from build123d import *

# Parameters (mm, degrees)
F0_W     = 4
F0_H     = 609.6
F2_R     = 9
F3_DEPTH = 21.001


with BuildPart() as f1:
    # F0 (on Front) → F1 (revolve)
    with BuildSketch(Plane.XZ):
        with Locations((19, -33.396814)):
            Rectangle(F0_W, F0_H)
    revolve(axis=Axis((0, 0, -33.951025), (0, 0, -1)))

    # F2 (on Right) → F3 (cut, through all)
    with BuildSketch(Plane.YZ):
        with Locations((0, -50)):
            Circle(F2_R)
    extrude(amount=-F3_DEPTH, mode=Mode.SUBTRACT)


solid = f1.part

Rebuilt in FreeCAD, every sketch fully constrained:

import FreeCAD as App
import Part
import Sketcher

V = App.Vector
Q = App.Units.Quantity

doc = App.newDocument("Part")
body = doc.addObject("PartDesign::Body", "Body")

# Sketch on XZ plane
sketch1 = body.newObject("Sketcher::SketchObject", "Sketch")
sketch1.AttachmentSupport = (doc.getObject("XZ_Plane"), [""])
sketch1.MapMode = "FlatFace"
sketch1.addGeometry(Part.LineSegment(V(17, 271.403186, 0), V(17, -338.196814, 0)), False)
sketch1.addGeometry(Part.LineSegment(V(17, -338.196814, 0), V(21, -338.196814, 0)), False)
sketch1.addGeometry(Part.LineSegment(V(21, -338.196814, 0), V(21, 271.403186, 0)), False)
sketch1.addGeometry(Part.LineSegment(V(21, 271.403186, 0), V(17, 271.403186, 0)), False)
sketch1.addConstraint(Sketcher.Constraint("Coincident", 0, 2, 1, 1))
sketch1.addConstraint(Sketcher.Constraint("Coincident", 1, 2, 2, 1))
sketch1.addConstraint(Sketcher.Constraint("Coincident", 2, 2, 3, 1))
sketch1.addConstraint(Sketcher.Constraint("Coincident", 3, 2, 0, 1))
sketch1.addConstraint(Sketcher.Constraint("Vertical", 0))
sketch1.addConstraint(Sketcher.Constraint("Horizontal", 1))
sketch1.addConstraint(Sketcher.Constraint("Vertical", 2))
sketch1.addConstraint(Sketcher.Constraint("Horizontal", 3))
sketch1.addConstraint(Sketcher.Constraint("DistanceX", 1, 1, 1, 2, Q("4 mm")))
sketch1.addConstraint(Sketcher.Constraint("DistanceY", 0, 2, 0, 1, Q("609.6 mm")))
sketch1.addConstraint(Sketcher.Constraint("DistanceX", -1, 1, 0, 2, Q("17 mm")))
sketch1.addConstraint(Sketcher.Constraint("DistanceY", 0, 2, -1, 1, Q("338.196814 mm")))
revolution = body.newObject("PartDesign::Revolution", "Revolution")
revolution.Profile = sketch1
revolution.ReferenceAxis = (sketch1, ["V_Axis"])
revolution.Angle = 360

# Sketch on YZ plane
sketch2 = body.newObject("Sketcher::SketchObject", "Sketch001")
sketch2.AttachmentSupport = (doc.getObject("YZ_Plane"), [""])
sketch2.MapMode = "FlatFace"
sketch2.addGeometry(Part.Circle(V(0, -50, 0), V(0, 0, 1), 9), False)
sketch2.addConstraint(Sketcher.Constraint("PointOnObject", 0, 3, -2))
sketch2.addConstraint(Sketcher.Constraint("Diameter", 0, Q("18 mm")))
sketch2.addConstraint(Sketcher.Constraint("DistanceY", 0, 3, -1, 1, Q("50 mm")))
pocket1 = body.newObject("PartDesign::Pocket", "Pocket")
pocket1.Profile = sketch2
pocket1.Type = "ThroughAll"

doc.recompute()
